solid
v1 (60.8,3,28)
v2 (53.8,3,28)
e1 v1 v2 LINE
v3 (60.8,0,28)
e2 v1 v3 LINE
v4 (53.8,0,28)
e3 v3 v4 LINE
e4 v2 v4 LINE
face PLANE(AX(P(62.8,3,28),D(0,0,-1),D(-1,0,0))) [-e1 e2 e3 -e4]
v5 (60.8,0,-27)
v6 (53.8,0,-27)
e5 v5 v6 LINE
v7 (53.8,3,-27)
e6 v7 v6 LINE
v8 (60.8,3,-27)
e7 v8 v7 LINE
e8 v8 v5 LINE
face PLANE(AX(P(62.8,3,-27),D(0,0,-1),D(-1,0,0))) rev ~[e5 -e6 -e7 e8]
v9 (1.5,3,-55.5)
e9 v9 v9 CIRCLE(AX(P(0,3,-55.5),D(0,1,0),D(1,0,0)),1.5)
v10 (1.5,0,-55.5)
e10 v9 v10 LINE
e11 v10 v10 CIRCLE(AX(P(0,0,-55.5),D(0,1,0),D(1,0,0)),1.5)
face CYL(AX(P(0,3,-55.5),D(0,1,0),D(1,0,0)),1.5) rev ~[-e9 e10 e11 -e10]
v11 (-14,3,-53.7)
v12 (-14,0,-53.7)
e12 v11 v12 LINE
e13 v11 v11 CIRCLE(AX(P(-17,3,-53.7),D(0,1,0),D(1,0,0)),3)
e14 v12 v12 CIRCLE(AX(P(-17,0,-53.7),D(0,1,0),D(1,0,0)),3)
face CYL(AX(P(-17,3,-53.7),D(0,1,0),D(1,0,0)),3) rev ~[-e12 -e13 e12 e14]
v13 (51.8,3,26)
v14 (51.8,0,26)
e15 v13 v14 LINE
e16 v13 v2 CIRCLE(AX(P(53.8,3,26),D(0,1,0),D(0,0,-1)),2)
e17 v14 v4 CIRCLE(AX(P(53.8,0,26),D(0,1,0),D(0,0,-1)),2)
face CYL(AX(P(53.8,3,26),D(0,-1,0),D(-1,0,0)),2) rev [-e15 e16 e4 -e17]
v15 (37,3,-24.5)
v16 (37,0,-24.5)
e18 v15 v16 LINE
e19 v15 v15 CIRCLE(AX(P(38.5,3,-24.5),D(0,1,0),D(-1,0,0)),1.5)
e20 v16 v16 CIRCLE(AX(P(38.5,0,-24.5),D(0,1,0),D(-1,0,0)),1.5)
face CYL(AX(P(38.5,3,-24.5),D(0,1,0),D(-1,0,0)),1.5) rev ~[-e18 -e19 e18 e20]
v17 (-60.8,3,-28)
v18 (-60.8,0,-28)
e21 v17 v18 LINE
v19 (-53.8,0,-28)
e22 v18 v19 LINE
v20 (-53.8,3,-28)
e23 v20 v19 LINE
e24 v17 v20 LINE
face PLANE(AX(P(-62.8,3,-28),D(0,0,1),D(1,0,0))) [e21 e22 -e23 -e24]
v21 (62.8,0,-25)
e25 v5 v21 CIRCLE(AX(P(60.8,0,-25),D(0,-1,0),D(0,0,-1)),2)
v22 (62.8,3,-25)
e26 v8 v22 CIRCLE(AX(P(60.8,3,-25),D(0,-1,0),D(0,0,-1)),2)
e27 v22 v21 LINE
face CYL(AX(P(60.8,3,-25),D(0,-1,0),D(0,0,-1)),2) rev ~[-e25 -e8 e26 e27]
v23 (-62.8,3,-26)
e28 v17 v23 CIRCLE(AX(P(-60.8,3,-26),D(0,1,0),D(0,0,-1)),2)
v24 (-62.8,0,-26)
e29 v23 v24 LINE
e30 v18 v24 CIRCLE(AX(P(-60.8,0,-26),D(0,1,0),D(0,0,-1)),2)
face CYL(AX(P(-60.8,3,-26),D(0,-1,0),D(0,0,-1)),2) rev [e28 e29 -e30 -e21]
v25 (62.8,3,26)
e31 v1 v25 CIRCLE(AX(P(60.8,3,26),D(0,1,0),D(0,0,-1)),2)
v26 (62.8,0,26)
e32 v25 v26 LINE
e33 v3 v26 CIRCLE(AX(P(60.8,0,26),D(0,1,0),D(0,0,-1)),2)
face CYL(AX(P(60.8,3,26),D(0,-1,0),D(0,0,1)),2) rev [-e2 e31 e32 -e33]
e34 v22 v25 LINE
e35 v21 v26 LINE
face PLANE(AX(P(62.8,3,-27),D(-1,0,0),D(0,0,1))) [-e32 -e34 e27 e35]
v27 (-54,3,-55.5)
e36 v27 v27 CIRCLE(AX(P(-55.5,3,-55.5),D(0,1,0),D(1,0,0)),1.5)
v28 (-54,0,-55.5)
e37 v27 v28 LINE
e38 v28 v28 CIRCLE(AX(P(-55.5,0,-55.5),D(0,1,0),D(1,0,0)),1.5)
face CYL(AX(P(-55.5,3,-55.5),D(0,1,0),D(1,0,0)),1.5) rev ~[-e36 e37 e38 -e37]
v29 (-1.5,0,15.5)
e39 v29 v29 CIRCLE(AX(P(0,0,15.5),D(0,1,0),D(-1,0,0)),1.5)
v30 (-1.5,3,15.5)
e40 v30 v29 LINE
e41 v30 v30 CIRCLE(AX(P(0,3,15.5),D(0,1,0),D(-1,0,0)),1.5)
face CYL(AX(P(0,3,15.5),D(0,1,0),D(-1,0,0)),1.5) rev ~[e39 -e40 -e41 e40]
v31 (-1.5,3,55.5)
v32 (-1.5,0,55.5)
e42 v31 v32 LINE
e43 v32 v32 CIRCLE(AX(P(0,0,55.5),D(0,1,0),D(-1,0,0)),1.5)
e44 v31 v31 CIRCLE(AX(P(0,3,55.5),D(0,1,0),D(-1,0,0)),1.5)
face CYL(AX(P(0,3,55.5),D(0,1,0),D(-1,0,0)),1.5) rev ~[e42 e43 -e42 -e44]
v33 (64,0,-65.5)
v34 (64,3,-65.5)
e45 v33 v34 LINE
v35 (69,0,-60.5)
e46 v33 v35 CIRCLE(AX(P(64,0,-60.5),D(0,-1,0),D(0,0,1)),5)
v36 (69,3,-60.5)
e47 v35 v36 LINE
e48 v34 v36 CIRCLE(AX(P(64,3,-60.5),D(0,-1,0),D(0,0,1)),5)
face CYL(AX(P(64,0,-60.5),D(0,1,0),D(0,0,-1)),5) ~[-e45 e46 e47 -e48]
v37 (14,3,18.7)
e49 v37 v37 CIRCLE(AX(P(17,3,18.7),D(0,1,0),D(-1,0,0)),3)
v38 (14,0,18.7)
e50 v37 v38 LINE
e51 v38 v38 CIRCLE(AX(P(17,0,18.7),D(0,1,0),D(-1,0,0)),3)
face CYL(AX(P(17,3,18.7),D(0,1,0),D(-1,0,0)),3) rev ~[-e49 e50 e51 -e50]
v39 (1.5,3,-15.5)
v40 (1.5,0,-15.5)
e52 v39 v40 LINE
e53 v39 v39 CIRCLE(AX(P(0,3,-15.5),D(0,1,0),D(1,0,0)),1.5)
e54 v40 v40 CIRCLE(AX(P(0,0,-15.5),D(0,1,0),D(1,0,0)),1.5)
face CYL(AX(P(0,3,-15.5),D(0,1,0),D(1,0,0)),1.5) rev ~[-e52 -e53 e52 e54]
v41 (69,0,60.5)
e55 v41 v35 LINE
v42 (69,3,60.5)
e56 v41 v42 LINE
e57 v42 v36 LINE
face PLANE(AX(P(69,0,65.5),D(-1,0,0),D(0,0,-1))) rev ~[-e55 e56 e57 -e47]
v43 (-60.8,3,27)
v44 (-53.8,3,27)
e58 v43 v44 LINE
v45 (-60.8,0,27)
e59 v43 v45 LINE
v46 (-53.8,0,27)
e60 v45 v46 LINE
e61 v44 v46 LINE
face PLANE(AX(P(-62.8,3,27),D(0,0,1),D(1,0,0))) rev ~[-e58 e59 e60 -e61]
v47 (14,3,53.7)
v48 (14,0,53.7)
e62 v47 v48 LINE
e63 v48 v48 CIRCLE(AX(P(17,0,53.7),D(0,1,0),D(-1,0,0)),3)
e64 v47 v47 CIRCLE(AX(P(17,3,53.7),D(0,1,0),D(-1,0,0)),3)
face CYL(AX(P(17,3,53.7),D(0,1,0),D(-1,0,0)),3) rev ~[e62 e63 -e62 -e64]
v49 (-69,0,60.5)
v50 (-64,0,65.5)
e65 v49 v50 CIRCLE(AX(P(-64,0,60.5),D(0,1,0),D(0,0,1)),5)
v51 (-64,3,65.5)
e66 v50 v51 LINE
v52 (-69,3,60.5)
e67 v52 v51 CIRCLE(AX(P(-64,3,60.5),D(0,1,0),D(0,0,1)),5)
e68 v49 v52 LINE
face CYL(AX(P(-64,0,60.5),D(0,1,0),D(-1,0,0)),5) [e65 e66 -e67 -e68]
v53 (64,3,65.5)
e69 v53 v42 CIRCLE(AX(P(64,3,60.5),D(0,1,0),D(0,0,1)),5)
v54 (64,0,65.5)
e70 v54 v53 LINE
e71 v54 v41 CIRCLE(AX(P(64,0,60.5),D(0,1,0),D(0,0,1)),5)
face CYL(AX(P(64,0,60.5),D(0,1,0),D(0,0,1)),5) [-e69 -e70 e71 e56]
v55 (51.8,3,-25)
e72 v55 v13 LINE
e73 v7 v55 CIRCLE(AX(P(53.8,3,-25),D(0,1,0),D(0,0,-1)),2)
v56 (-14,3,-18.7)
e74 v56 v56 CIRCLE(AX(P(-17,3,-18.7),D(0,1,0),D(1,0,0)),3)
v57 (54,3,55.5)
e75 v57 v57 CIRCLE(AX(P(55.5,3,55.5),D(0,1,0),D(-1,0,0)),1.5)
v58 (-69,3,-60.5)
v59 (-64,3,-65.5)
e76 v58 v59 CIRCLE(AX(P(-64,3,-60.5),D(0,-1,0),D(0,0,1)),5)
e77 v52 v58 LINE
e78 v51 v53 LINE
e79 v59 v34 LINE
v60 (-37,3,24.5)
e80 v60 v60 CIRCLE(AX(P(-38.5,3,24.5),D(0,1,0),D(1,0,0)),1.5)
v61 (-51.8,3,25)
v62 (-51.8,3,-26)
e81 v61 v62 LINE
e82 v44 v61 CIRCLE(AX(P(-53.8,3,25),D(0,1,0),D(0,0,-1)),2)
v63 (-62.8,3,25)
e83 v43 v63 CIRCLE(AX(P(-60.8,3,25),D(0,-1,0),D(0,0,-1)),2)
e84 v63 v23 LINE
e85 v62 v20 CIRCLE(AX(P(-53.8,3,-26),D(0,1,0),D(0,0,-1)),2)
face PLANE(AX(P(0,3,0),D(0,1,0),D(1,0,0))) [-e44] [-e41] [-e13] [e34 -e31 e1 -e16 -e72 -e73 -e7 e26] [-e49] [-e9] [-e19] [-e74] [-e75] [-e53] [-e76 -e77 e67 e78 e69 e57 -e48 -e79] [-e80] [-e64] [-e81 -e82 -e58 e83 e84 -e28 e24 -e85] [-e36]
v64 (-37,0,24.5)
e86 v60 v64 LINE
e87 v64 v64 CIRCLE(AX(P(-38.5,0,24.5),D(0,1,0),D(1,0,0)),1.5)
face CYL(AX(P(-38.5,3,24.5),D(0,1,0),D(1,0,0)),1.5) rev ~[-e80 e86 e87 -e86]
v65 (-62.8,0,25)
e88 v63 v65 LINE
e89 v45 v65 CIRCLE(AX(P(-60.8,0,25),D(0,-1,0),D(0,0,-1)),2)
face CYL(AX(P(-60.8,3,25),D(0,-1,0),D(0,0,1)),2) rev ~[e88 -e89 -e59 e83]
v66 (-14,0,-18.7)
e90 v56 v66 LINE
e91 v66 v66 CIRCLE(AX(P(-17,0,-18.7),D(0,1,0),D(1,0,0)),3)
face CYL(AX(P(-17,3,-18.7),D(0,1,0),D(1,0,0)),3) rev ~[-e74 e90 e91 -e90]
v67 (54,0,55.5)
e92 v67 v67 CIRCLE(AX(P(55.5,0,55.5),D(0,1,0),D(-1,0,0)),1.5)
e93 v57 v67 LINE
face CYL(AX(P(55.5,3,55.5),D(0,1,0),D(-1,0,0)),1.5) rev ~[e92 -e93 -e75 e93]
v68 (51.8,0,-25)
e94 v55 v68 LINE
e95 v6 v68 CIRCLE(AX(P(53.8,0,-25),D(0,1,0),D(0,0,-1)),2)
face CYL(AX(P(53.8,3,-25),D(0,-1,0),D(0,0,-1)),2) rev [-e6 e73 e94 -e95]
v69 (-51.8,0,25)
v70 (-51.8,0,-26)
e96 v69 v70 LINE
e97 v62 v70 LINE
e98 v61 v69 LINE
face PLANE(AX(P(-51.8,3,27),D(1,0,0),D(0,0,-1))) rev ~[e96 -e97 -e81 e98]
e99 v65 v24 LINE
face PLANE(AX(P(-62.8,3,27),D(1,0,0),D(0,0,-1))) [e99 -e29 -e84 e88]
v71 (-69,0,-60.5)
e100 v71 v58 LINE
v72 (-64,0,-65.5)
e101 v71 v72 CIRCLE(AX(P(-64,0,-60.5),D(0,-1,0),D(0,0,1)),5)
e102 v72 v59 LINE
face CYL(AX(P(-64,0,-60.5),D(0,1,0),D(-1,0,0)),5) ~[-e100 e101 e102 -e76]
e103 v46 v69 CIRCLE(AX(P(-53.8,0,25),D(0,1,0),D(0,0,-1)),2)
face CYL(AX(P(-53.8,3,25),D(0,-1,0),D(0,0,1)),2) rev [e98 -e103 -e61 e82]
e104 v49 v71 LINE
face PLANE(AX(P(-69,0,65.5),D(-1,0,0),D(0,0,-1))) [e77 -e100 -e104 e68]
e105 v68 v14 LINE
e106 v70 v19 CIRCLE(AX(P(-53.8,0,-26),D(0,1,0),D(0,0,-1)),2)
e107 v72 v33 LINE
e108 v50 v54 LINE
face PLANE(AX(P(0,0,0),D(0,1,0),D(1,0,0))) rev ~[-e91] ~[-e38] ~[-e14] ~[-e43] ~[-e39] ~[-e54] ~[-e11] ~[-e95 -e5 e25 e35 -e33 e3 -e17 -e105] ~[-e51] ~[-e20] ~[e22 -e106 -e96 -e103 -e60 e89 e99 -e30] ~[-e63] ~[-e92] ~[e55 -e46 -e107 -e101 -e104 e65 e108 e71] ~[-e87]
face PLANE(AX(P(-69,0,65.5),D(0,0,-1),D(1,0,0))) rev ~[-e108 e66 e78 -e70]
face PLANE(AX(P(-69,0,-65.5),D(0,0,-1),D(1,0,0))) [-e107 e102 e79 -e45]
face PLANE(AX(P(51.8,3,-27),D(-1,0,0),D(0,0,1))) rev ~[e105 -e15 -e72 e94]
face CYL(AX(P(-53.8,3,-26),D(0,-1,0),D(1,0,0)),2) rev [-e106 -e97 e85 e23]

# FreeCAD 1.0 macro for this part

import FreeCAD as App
import Part
import Sketcher
from FreeCAD import Vector


def edges_at(feature, points):
    """Names of the edges that pass closest to the given points."""
    edges = feature.Shape.Edges
    near = lambda p: min(range(len(edges)), key=lambda i: edges[i].distToShape(Part.Vertex(*p))[0])
    return sorted({f"Edge{near(p) + 1}" for p in points})

doc = App.newDocument("Part")
body = doc.addObject("PartDesign::Body", "Body")

# Sketch on XZ plane
sketch1 = body.newObject("Sketcher::SketchObject", "Sketch")
sketch1.AttachmentSupport = (doc.getObject("XZ_Plane"), [""])
sketch1.MapMode = "FlatFace"
sketch1.addGeometry([
    Part.LineSegment(Vector(-69, -66, 0), Vector(-69, 66, 0)),
    Part.LineSegment(Vector(-69, 66, 0), Vector(69, 66, 0)),
    Part.LineSegment(Vector(69, 66, 0), Vector(69, -66, 0)),
    Part.LineSegment(Vector(69, -66, 0), Vector(-69, -66, 0)),
], False)
sketch1.addConstraint([
    Sketcher.Constraint("Coincident", 0, 2, 1, 1),
    Sketcher.Constraint("Coincident", 1, 2, 2, 1),
    Sketcher.Constraint("Coincident", 2, 2, 3, 1),
    Sketcher.Constraint("Coincident", 3, 2, 0, 1),
    Sketcher.Constraint("Vertical", 0),
    Sketcher.Constraint("Horizontal", 1),
    Sketcher.Constraint("Vertical", 2),
    Sketcher.Constraint("Horizontal", 3),
    Sketcher.Constraint("Symmetric", 0, 2, 2, 2, -1, 1),
    Sketcher.Constraint("DistanceX", 1, 1, 1, 2, 138.0),
    Sketcher.Constraint("DistanceY", 0, 1, 0, 2, 131.0),
])
pad1 = body.newObject("PartDesign::Pad", "Pad")
pad1.Profile = sketch1
pad1.Length = 3
pad1.Reversed = True

# Sketch on XZ plane
sketch2 = body.newObject("Sketcher::SketchObject", "Sketch001")
sketch2.AttachmentSupport = (doc.getObject("XZ_Plane"), [""])
sketch2.MapMode = "FlatFace"
sketch2.AttachmentOffset = App.Placement(Vector(0, 0, -3), App.Rotation())
sketch2.addGeometry([
    Part.Circle(Vector(-17, -18.7, 0), Vector(0, 0, 1), 3),  # 0
    Part.Circle(Vector(-17, -53.7, 0), Vector(0, 0, 1), 3),  # 1
    Part.Circle(Vector(0, -55.5, 0), Vector(0, 0, 1), 1.5),  # 2
    Part.Circle(Vector(0, -15.5, 0), Vector(0, 0, 1), 1.5),  # 3
    Part.Circle(Vector(-55.5, -55.5, 0), Vector(0, 0, 1), 1.5),  # 4
    Part.Circle(Vector(-38.5, 24.5, 0), Vector(0, 0, 1), 1.5),  # 5
    Part.LineSegment(Vector(-62.8, -28, 0), Vector(-62.8, 27, 0)),  # 6
    Part.LineSegment(Vector(-62.8, 27, 0), Vector(-51.8, 27, 0)),  # 7
    Part.LineSegment(Vector(-51.8, 27, 0), Vector(-51.8, -28, 0)),  # 8
    Part.LineSegment(Vector(-51.8, -28, 0), Vector(-62.8, -28, 0)),  # 9
], False)
sketch2.addConstraint([
    Sketcher.Constraint("Coincident", 6, 2, 7, 1),
    Sketcher.Constraint("Coincident", 7, 2, 8, 1),
    Sketcher.Constraint("Coincident", 8, 2, 9, 1),
    Sketcher.Constraint("Coincident", 9, 2, 6, 1),
    Sketcher.Constraint("Vertical", 6),
    Sketcher.Constraint("Horizontal", 7),
    Sketcher.Constraint("Vertical", 8),
    Sketcher.Constraint("Horizontal", 9),
    Sketcher.Constraint("Equal", 0, 1),
    Sketcher.Constraint("Equal", 2, 3),
    Sketcher.Constraint("Equal", 3, 4),
    Sketcher.Constraint("Equal", 4, 5),
    Sketcher.Constraint("PointOnObject", 2, 3, -2),
    Sketcher.Constraint("PointOnObject", 3, 3, -2),
    Sketcher.Constraint("Horizontal", 2, 3, 4, 3),
    Sketcher.Constraint("Vertical", 0, 3, 1, 3),
    Sketcher.Constraint("Diameter", 0, 6.0),
    Sketcher.Constraint("Diameter", 2, 3.0),
    Sketcher.Constraint("DistanceX", 7, 1, 7, 2, 11.0),
    Sketcher.Constraint("DistanceY", 6, 1, 6, 2, 55.0),
    Sketcher.Constraint("DistanceX", 0, 3, -1, 1, 17.0),
    Sketcher.Constraint("DistanceY", -1, 1, 6, 2, 27.0),
    Sketcher.Constraint("DistanceY", 1, 3, 0, 3, 35.0),
    Sketcher.Constraint("DistanceY", 2, 3, 3, 3, 40.0),
    Sketcher.Constraint("DistanceY", 3, 3, 5, 3, 40.0),
    Sketcher.Constraint("DistanceX", 4, 3, 5, 3, 17.0),
    Sketcher.Constraint("DistanceY", 0, 3, -1, 1, 18.7),
    Sketcher.Constraint("DistanceY", 2, 3, -1, 1, 55.5),
    Sketcher.Constraint("DistanceX", 4, 3, -1, 1, 55.5),
    Sketcher.Constraint("DistanceX", 6, 2, -1, 1, 62.8),
])
pocket1 = body.newObject("PartDesign::Pocket", "Pocket")
pocket1.Profile = sketch2
pocket1.Type = "ThroughAll"
pocket1.Reversed = True
doc.recompute()

fillet = body.newObject("PartDesign::Fillet", "Fillet")
fillet.Base = (pocket1, edges_at(pocket1, [
    (-69, 1.5, -65.5),
    (69, 1.5, -65.5),
    (69, 1.5, 65.5),
    (-69, 1.5, 65.5),
]))
fillet.Radius = 5
doc.recompute()

fillet2 = body.newObject("PartDesign::Fillet", "Fillet001")
fillet2.Base = (fillet, edges_at(fillet, [
    (-51.8, 1.5, -28),
    (-51.8, 1.5, 27),
    (-62.8, 1.5, 27),
    (-62.8, 1.5, -28),
]))
fillet2.Radius = 2
doc.recompute()

polarpattern = body.newObject("PartDesign::PolarPattern", "PolarPattern")
polarpattern.Originals = [pocket1]
polarpattern.Axis = (doc.getObject("Y_Axis"), [""])
polarpattern.Angle = 360
polarpattern.Occurrences = 2
body.Tip = polarpattern
doc.recompute()

fillet3 = body.newObject("PartDesign::Fillet", "Fillet002")
fillet3.Base = (polarpattern, edges_at(polarpattern, [
    (51.8, 1.5, 28),
    (51.8, 1.5, -27),
    (62.8, 1.5, -27),
    (62.8, 1.5, 28),
]))
fillet3.Radius = 2

doc.recompute()
